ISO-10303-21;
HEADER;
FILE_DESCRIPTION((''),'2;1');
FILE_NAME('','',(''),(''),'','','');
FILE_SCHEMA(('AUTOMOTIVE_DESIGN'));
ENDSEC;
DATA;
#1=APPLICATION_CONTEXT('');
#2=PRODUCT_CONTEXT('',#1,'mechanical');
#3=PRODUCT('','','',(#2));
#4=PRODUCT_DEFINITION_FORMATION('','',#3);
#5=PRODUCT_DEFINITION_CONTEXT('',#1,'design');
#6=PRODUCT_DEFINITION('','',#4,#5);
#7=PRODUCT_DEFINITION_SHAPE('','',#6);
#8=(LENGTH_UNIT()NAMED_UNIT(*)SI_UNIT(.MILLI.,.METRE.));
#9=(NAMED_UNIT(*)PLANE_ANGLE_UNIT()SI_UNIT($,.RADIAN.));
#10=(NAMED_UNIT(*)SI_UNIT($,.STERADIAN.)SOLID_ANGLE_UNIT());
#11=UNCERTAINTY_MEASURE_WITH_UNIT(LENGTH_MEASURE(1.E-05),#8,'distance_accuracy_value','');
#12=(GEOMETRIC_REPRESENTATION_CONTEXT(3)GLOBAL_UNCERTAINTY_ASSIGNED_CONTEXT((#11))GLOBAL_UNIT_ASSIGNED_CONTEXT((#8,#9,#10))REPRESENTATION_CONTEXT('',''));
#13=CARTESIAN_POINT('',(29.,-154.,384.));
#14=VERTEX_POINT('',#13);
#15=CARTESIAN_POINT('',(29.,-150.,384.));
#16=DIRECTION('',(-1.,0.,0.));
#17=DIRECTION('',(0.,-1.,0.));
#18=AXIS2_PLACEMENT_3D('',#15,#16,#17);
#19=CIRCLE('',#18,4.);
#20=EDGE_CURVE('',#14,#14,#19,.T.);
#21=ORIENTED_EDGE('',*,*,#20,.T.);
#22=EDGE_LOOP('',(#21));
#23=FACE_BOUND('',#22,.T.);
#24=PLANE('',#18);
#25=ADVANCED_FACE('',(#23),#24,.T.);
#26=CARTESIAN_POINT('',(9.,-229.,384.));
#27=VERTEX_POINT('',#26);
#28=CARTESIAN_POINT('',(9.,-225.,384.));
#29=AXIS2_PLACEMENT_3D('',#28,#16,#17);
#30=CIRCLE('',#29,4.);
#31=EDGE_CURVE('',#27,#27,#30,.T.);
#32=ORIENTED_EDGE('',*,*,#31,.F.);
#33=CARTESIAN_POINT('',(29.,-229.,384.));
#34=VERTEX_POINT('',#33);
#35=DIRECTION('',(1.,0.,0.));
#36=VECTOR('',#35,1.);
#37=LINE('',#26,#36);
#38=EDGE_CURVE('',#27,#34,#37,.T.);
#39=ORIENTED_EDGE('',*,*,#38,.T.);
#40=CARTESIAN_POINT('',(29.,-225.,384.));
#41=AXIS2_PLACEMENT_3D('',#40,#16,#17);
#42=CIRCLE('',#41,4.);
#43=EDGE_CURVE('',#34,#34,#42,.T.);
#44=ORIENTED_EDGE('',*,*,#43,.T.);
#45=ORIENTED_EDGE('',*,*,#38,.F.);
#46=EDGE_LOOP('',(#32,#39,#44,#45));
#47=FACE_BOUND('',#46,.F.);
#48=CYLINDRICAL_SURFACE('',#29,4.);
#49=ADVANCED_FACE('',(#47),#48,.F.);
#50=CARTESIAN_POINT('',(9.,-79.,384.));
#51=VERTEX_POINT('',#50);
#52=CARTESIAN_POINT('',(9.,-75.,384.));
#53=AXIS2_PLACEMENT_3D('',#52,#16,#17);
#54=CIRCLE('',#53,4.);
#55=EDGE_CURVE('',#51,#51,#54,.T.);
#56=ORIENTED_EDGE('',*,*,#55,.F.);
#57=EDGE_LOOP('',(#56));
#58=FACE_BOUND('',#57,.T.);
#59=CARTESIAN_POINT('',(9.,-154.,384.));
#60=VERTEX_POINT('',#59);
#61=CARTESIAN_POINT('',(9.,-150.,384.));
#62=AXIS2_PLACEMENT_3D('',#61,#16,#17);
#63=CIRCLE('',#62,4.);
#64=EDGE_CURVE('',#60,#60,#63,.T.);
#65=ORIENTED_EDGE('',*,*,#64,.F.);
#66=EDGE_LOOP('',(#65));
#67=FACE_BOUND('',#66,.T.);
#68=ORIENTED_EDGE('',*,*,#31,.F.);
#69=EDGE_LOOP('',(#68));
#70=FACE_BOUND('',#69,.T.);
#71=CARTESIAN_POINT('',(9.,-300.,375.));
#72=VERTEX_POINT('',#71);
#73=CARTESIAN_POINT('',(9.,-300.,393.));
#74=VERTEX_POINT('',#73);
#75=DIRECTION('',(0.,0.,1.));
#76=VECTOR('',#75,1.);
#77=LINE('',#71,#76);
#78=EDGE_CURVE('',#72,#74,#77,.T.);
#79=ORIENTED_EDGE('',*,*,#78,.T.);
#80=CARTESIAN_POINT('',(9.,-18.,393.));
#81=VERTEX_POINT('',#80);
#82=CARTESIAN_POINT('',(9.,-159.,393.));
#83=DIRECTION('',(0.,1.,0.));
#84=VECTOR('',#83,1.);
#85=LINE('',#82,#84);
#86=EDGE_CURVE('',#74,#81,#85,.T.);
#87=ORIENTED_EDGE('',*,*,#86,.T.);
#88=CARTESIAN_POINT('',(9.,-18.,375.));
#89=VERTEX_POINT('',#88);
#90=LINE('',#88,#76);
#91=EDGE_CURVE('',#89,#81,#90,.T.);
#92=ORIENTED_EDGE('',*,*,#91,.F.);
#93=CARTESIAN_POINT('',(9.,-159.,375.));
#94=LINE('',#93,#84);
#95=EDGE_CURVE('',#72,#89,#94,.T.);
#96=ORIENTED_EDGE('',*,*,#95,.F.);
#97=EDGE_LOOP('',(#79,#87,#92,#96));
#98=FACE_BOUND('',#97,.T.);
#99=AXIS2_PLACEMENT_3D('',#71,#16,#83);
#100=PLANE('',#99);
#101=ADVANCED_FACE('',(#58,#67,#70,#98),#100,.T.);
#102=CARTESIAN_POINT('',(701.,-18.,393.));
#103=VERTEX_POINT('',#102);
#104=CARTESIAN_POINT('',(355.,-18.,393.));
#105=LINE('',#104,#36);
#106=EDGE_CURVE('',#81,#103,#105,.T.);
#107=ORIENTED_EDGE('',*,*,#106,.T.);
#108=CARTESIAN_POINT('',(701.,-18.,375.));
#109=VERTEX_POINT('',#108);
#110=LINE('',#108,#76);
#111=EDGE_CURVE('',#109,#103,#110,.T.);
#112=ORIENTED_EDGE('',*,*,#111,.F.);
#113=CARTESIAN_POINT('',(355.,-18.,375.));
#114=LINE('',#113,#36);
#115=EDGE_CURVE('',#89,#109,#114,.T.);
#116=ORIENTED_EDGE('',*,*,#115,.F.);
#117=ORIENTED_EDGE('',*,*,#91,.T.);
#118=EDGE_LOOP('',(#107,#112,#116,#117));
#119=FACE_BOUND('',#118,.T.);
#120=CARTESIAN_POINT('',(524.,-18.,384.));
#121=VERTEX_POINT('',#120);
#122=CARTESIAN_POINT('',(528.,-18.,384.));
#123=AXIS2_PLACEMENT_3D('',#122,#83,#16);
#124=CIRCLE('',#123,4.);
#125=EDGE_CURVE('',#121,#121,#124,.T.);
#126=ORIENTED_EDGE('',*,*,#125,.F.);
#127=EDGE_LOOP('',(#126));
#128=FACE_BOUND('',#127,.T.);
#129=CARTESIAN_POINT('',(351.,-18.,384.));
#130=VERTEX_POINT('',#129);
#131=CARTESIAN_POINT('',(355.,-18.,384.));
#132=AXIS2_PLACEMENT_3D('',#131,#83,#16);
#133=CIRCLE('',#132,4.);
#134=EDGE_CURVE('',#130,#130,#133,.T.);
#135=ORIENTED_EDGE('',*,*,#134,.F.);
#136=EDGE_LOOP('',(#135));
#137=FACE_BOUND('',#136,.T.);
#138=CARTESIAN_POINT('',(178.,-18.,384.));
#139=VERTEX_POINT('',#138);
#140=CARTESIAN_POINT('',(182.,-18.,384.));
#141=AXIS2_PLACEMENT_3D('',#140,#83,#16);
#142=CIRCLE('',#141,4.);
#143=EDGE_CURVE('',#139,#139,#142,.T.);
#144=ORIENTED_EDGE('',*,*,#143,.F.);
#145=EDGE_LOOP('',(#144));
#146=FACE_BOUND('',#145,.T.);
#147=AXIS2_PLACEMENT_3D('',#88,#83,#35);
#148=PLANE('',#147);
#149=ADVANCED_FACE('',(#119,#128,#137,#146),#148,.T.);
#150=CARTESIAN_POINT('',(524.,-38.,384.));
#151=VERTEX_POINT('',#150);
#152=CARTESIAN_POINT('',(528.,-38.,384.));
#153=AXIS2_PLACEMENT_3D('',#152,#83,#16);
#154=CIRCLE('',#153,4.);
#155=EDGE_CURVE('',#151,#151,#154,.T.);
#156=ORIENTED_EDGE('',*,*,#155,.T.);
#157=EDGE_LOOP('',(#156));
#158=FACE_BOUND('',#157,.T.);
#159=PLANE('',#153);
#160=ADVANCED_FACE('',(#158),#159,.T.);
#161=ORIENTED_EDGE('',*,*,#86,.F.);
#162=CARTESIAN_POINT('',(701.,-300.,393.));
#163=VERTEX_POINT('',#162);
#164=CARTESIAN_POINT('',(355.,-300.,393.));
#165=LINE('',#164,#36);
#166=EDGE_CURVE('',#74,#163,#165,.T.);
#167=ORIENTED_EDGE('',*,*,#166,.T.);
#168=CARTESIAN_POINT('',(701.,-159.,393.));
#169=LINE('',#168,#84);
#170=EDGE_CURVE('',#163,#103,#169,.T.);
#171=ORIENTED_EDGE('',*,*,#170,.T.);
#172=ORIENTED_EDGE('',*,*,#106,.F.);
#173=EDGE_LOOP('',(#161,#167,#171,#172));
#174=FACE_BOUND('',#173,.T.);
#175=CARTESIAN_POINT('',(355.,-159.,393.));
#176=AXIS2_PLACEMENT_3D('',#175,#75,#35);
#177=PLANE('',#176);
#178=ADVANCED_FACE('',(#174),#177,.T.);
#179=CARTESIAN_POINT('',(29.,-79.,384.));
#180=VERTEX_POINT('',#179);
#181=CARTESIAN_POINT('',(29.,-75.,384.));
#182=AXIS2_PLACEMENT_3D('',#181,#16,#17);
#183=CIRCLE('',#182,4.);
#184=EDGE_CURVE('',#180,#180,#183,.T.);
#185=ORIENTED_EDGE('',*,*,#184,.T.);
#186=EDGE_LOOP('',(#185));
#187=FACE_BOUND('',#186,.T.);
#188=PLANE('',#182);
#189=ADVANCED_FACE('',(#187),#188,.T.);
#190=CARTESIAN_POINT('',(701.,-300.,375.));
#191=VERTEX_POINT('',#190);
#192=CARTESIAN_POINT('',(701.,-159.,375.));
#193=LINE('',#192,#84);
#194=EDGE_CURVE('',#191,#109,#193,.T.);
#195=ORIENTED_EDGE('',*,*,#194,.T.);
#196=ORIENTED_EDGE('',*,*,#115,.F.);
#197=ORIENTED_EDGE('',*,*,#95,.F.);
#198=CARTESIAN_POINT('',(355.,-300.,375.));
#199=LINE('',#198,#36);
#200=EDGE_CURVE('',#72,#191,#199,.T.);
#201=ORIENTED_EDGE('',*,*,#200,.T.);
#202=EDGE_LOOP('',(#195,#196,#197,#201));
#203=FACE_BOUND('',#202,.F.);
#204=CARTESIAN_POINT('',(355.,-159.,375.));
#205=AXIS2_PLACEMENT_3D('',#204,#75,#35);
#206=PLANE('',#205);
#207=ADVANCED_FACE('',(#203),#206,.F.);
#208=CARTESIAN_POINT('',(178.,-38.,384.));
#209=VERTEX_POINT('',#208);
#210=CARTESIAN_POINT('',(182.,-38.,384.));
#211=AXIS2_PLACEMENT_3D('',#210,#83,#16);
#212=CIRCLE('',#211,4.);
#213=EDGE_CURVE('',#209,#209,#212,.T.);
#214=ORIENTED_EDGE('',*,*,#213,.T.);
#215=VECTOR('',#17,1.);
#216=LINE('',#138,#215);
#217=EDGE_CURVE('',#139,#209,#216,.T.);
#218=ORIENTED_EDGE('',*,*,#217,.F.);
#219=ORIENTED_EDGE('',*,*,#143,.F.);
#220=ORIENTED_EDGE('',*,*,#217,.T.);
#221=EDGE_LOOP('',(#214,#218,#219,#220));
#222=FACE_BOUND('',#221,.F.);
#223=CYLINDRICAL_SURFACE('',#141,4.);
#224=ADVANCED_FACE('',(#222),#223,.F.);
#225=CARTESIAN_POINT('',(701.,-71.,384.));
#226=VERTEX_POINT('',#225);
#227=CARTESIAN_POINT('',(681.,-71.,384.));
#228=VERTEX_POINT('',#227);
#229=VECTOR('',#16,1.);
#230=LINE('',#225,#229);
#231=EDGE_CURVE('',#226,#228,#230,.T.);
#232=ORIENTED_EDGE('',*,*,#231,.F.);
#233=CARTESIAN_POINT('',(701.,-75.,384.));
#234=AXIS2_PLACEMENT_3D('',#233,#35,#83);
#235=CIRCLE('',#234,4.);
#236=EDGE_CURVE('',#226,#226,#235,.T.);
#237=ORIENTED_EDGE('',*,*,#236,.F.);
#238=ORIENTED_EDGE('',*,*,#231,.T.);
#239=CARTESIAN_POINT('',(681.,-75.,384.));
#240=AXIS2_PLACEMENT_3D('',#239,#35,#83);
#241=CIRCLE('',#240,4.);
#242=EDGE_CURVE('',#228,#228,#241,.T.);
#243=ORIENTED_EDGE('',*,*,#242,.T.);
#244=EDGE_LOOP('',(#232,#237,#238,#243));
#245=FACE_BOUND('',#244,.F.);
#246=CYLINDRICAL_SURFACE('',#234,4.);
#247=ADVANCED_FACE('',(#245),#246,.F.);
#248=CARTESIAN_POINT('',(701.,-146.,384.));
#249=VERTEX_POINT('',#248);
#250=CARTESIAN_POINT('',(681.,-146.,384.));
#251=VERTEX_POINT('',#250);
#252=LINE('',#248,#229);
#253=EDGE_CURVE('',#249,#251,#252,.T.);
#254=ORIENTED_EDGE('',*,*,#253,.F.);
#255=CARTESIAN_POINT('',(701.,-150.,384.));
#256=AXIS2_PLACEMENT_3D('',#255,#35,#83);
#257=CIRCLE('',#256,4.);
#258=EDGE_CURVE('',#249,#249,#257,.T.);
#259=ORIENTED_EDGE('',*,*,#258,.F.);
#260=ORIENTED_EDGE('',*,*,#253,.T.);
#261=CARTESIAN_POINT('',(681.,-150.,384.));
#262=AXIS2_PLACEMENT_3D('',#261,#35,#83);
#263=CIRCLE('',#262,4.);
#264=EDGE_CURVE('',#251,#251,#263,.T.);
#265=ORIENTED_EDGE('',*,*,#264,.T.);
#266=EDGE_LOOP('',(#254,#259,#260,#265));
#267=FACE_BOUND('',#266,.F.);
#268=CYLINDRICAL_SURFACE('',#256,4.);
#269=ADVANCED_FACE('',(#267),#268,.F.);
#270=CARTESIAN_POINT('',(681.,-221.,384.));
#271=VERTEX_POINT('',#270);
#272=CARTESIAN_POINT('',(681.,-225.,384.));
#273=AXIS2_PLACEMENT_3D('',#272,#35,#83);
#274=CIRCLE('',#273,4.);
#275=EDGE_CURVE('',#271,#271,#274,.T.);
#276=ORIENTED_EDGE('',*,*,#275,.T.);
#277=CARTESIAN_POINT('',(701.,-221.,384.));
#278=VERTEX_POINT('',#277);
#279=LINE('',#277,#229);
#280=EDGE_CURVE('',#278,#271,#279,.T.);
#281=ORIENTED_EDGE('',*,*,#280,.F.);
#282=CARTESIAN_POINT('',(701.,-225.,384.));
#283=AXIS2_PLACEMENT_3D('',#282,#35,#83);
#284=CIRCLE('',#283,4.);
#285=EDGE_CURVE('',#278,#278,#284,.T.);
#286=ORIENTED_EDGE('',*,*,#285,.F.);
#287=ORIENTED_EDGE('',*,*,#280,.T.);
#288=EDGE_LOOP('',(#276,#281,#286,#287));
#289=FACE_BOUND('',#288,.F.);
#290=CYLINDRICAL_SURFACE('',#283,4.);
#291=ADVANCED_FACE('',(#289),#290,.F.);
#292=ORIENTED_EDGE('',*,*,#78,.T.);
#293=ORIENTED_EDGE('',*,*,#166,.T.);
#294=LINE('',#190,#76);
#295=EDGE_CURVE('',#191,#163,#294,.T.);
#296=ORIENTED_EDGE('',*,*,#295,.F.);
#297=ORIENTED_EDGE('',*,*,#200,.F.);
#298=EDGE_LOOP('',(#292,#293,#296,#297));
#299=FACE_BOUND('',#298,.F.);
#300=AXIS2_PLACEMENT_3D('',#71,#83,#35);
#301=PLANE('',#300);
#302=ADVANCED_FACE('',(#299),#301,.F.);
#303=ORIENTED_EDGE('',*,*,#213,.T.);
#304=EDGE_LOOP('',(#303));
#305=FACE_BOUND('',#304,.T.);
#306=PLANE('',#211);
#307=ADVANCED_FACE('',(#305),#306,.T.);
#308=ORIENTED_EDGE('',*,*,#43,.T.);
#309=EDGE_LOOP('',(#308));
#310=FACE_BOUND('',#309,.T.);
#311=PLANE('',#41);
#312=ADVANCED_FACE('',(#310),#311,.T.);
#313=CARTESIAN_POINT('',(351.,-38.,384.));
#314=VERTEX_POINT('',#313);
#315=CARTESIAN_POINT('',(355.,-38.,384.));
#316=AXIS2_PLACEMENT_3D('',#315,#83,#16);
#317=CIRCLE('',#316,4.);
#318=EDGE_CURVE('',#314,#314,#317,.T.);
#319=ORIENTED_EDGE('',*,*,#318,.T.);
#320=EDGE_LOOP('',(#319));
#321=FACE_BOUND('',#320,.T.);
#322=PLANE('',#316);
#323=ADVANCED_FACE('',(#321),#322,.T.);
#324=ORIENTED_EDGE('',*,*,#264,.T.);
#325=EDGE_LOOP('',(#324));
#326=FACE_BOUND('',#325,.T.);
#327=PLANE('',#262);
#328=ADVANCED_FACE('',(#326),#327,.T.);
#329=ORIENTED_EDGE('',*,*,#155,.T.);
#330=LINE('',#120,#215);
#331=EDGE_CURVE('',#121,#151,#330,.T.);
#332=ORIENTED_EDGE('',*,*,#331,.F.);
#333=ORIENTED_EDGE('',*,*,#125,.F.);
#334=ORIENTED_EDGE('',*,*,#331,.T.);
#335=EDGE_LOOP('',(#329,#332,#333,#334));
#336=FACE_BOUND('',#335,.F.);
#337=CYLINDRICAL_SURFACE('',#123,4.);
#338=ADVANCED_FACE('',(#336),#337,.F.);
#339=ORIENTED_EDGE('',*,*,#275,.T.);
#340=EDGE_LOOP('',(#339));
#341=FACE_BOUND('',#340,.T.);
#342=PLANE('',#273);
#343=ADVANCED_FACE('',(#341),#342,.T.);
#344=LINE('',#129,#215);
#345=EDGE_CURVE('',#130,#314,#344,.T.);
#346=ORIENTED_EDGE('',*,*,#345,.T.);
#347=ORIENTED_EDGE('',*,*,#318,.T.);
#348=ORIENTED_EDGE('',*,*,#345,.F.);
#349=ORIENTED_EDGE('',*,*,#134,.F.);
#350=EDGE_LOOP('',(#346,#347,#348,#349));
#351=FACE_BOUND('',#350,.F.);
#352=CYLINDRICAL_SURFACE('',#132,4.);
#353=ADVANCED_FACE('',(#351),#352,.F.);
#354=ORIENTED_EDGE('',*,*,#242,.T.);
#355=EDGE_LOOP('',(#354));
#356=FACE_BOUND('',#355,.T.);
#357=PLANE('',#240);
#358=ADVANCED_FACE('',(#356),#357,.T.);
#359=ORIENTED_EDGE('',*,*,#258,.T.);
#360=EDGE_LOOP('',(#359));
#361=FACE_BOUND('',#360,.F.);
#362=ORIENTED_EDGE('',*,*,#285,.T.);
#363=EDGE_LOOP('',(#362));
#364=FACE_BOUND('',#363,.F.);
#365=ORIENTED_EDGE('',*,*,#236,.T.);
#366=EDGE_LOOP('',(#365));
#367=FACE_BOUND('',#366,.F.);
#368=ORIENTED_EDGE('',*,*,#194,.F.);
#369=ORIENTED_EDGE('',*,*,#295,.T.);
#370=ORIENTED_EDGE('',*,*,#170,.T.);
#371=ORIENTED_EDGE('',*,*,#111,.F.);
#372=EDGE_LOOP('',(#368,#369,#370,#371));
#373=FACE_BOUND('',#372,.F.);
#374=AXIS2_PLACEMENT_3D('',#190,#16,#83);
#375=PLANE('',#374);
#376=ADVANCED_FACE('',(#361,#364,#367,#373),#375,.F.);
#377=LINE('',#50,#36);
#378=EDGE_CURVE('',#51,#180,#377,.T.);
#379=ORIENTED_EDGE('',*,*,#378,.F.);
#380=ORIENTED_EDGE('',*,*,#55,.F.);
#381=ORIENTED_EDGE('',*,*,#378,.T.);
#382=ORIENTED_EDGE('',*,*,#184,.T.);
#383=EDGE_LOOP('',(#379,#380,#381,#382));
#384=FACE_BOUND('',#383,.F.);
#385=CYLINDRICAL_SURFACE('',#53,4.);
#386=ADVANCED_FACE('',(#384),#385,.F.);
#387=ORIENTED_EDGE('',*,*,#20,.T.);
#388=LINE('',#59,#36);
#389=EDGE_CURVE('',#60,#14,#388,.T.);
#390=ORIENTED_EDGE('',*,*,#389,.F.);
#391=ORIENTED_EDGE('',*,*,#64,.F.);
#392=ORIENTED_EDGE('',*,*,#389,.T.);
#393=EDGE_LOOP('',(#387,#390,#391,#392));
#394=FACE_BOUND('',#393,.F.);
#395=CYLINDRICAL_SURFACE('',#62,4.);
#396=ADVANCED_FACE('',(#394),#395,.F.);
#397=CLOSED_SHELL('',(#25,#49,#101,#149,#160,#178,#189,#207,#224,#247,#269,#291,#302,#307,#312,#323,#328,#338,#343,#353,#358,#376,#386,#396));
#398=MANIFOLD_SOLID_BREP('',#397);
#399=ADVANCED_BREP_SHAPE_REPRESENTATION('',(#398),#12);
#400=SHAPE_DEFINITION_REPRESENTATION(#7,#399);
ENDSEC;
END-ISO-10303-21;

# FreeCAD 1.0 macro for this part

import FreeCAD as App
import Part
import Sketcher

V = App.Vector
Q = App.Units.Quantity

doc = App.newDocument("Part")
body = doc.addObject("PartDesign::Body", "Body")

# Sketch on XY plane
sketch1 = body.newObject("Sketcher::SketchObject", "Sketch")
sketch1.AttachmentSupport = (doc.getObject("XY_Plane"), [""])
sketch1.MapMode = "FlatFace"
sketch1.addGeometry([
    Part.LineSegment(V(-701, -18, 0), V(-701, -300, 0)),
    Part.LineSegment(V(-701, -300, 0), V(-9, -300, 0)),
    Part.LineSegment(V(-9, -300, 0), V(-9, -18, 0)),
    Part.LineSegment(V(-9, -18, 0), V(-701, -18, 0)),
], False)
sketch1.addConstraint([
    Sketcher.Constraint("Coincident", 0, 2, 1, 1),
    Sketcher.Constraint("Coincident", 1, 2, 2, 1),
    Sketcher.Constraint("Coincident", 2, 2, 3, 1),
    Sketcher.Constraint("Coincident", 3, 2, 0, 1),
    Sketcher.Constraint("Vertical", 0),
    Sketcher.Constraint("Horizontal", 1),
    Sketcher.Constraint("Vertical", 2),
    Sketcher.Constraint("Horizontal", 3),
    Sketcher.Constraint("DistanceX", 1, 1, 1, 2, Q("692 mm")),
    Sketcher.Constraint("DistanceY", 0, 2, 0, 1, Q("282 mm")),
    Sketcher.Constraint("DistanceX", 0, 2, -1, 1, Q("701 mm")),
    Sketcher.Constraint("DistanceY", 0, 2, -1, 1, Q("300 mm")),
])
pad1 = body.newObject("PartDesign::Pad", "Pad")
pad1.Profile = sketch1
pad1.Length = 18

# Sketch on YZ plane
sketch2 = body.newObject("Sketcher::SketchObject", "Sketch001")
sketch2.AttachmentSupport = (doc.getObject("YZ_Plane"), [""])
sketch2.MapMode = "FlatFace"
sketch2.AttachmentOffset = App.Placement(V(0, 0, -701), App.Rotation())
sketch2.addGeometry([
    Part.Circle(V(-150, 9, 0), V(0, 0, 1), 4),
    Part.Circle(V(-225, 9, 0), V(0, 0, 1), 4),
    Part.Circle(V(-75, 9, 0), V(0, 0, 1), 4),
], False)
sketch2.addConstraint([
    Sketcher.Constraint("Equal", 0, 1),
    Sketcher.Constraint("Equal", 1, 2),
    Sketcher.Constraint("Horizontal", 0, 3, 1, 3),
    Sketcher.Constraint("Horizontal", 1, 3, 2, 3),
    Sketcher.Constraint("Diameter", 0, Q("8 mm")),
    Sketcher.Constraint("DistanceX", 0, 3, -1, 1, Q("150 mm")),
    Sketcher.Constraint("DistanceY", -1, 1, 0, 3, Q("9 mm")),
    Sketcher.Constraint("DistanceX", 1, 3, -1, 1, Q("225 mm")),
    Sketcher.Constraint("DistanceX", 2, 3, -1, 1, Q("75 mm")),
])
pocket1 = body.newObject("PartDesign::Pocket", "Pocket")
pocket1.Profile = sketch2
pocket1.Length = 20
pocket1.Reversed = True

# Sketch on YZ plane
sketch3 = body.newObject("Sketcher::SketchObject", "Sketch002")
sketch3.AttachmentSupport = (doc.getObject("YZ_Plane"), [""])
sketch3.MapMode = "FlatFace"
sketch3.AttachmentOffset = App.Placement(V(0, 0, -9), App.Rotation())
sketch3.addGeometry([
    Part.Circle(V(-225, 9, 0), V(0, 0, 1), 4),
    Part.Circle(V(-150, 9, 0), V(0, 0, 1), 4),
    Part.Circle(V(-75, 9, 0), V(0, 0, 1), 4),
], False)
sketch3.addConstraint([
    Sketcher.Constraint("Equal", 0, 1),
    Sketcher.Constraint("Equal", 1, 2),
    Sketcher.Constraint("Horizontal", 0, 3, 1, 3),
    Sketcher.Constraint("Horizontal", 1, 3, 2, 3),
    Sketcher.Constraint("Diameter", 0, Q("8 mm")),
    Sketcher.Constraint("DistanceX", 0, 3, -1, 1, Q("225 mm")),
    Sketcher.Constraint("DistanceY", -1, 1, 0, 3, Q("9 mm")),
    Sketcher.Constraint("DistanceX", 1, 3, -1, 1, Q("150 mm")),
    Sketcher.Constraint("DistanceX", 2, 3, -1, 1, Q("75 mm")),
])
pocket2 = body.newObject("PartDesign::Pocket", "Pocket001")
pocket2.Profile = sketch3
pocket2.Length = 20

# Sketch on XZ plane
sketch4 = body.newObject("Sketcher::SketchObject", "Sketch003")
sketch4.AttachmentSupport = (doc.getObject("XZ_Plane"), [""])
sketch4.MapMode = "FlatFace"
sketch4.AttachmentOffset = App.Placement(V(0, 0, 18), App.Rotation())
sketch4.addGeometry([
    Part.Circle(V(-182, 9, 0), V(0, 0, 1), 4),
    Part.Circle(V(-355, 9, 0), V(0, 0, 1), 4),
    Part.Circle(V(-528, 9, 0), V(0, 0, 1), 4),
], False)
sketch4.addConstraint([
    Sketcher.Constraint("Equal", 0, 1),
    Sketcher.Constraint("Equal", 1, 2),
    Sketcher.Constraint("Horizontal", 0, 3, 1, 3),
    Sketcher.Constraint("Horizontal", 1, 3, 2, 3),
    Sketcher.Constraint("Diameter", 0, Q("8 mm")),
    Sketcher.Constraint("DistanceX", 0, 3, -1, 1, Q("182 mm")),
    Sketcher.Constraint("DistanceY", -1, 1, 0, 3, Q("9 mm")),
    Sketcher.Constraint("DistanceX", 1, 3, -1, 1, Q("355 mm")),
    Sketcher.Constraint("DistanceX", 2, 3, -1, 1, Q("528 mm")),
])
pocket3 = body.newObject("PartDesign::Pocket", "Pocket002")
pocket3.Profile = sketch4
pocket3.Length = 20
pocket3.Reversed = True
body2 = doc.addObject("PartDesign::Body", "Body001")
doc.recompute()

body.Placement = App.Placement(V(0, 0, 375), App.Rotation(V(0, 0, 1), 0))
boolean = body2.newObject("PartDesign::Boolean", "Boolean")
boolean.Type = "Fuse"
boolean.addObjects([body])
body3 = doc.addObject("PartDesign::Body", "Body002")
doc.recompute()

body2.Placement = App.Placement(V(710, 0, 0), App.Rotation(V(0, 0, 1), 0))
boolean2 = body3.newObject("PartDesign::Boolean", "Boolean001")
boolean2.Type = "Fuse"
boolean2.addObjects([body2])

doc.recompute()
